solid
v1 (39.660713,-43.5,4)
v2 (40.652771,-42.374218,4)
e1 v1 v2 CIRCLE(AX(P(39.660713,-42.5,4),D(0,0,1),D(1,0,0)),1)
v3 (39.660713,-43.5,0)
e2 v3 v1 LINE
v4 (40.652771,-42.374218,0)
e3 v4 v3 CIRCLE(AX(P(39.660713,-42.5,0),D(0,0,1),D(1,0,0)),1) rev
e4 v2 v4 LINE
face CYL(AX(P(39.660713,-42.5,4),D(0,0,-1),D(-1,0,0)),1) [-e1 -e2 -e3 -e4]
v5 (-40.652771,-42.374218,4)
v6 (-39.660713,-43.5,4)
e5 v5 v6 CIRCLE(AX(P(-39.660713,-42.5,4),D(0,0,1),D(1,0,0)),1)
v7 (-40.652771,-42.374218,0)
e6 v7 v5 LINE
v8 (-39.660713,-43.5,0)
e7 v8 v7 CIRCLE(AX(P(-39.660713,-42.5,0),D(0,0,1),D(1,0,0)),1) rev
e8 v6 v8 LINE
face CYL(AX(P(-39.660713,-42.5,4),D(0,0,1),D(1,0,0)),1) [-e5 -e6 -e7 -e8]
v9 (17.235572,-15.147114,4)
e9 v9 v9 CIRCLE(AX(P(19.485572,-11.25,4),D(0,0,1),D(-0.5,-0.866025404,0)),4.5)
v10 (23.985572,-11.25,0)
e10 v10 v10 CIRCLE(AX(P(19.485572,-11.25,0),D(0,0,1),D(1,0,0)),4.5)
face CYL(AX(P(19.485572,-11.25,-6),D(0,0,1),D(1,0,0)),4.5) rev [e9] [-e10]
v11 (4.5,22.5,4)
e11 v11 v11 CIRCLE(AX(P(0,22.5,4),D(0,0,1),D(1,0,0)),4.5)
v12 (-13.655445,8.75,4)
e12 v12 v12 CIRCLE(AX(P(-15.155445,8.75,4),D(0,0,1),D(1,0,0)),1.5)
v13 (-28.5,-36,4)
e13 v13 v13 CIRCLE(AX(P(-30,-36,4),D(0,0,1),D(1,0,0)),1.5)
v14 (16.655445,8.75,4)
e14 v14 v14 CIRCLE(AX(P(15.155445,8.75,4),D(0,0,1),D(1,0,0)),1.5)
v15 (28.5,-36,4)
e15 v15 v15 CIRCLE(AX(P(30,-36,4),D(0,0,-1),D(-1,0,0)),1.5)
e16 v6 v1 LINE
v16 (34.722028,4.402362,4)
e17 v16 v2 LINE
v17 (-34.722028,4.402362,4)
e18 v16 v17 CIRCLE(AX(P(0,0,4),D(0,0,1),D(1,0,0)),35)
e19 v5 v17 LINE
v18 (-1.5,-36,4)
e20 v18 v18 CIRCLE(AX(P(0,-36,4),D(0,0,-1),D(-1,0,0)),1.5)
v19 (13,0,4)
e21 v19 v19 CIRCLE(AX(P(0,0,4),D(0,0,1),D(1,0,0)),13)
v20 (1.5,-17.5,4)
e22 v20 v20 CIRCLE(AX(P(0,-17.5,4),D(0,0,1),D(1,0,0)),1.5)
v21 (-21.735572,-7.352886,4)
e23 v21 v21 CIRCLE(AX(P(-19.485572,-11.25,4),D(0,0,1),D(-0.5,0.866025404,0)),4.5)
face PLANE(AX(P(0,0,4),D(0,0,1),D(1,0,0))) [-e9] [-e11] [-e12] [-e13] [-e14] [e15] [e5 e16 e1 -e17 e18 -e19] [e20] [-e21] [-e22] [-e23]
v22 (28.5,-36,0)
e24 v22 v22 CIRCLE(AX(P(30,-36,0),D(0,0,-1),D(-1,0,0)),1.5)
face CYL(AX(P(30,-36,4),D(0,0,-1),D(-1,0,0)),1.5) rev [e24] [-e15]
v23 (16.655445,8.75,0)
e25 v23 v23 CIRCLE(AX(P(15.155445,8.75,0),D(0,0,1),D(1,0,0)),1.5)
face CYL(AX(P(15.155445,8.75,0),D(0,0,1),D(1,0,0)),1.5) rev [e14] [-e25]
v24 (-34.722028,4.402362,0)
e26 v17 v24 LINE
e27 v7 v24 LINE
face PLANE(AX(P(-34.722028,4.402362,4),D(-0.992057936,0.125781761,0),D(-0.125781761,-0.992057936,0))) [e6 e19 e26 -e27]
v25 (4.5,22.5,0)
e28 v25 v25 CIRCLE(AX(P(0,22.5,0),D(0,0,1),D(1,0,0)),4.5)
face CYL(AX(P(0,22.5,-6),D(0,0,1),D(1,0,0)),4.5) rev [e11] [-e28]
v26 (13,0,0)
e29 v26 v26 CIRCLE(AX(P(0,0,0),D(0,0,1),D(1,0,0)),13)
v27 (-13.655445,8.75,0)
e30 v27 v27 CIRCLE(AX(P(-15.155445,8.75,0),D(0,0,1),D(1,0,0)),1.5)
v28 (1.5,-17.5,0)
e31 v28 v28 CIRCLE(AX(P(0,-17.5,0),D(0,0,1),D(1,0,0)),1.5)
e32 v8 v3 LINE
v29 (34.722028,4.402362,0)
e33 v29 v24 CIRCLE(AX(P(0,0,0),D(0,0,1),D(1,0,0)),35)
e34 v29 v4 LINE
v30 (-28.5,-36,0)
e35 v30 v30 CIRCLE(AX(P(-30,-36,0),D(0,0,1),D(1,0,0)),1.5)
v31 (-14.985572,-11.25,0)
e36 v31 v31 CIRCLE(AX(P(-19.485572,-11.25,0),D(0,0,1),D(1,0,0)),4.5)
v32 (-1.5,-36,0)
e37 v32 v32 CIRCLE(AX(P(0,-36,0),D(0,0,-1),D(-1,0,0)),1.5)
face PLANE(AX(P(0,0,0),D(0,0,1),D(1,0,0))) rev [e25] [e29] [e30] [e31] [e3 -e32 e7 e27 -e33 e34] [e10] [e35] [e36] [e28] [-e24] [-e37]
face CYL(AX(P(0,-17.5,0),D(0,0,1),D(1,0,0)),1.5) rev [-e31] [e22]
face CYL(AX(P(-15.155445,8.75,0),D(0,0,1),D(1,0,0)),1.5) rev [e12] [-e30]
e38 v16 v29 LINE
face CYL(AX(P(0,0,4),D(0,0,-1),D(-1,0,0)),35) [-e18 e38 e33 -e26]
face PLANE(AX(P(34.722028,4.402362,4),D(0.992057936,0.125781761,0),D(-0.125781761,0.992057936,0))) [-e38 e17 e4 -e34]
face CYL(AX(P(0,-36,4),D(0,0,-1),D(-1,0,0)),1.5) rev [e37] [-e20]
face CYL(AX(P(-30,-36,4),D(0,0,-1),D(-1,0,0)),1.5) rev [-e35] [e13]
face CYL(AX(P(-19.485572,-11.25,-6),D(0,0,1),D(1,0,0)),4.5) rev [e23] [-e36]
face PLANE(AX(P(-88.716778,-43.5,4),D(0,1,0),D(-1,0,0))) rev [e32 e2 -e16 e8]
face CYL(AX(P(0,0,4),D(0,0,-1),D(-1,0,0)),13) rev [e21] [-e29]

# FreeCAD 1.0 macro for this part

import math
import FreeCAD as App
import Part
import Sketcher

V = App.Vector


def edges_at(feature, points):
    """Names of the edges that pass closest to the given points."""
    edges = feature.Shape.Edges
    near = lambda p: min(range(len(edges)), key=lambda i: edges[i].distToShape(Part.Vertex(*p))[0])
    return sorted({f"Edge{near(p) + 1}" for p in points})

doc = App.newDocument("Part")
body = doc.addObject("PartDesign::Body", "Body")

# Sketch on XY plane
sketch1 = body.newObject("Sketcher::SketchObject", "Sketch")
sketch1.AttachmentSupport = (doc.getObject("XY_Plane"), [""])
sketch1.MapMode = "FlatFace"
sketch1.addGeometry(Part.ArcOfCircle(Part.Circle(V(0, 0, 0), V(0, 0, 1), 35), math.radians(7.225904), math.radians(172.774096)), False)
sketch1.addGeometry(Part.LineSegment(V(-34.722028, 4.402362, 0), V(-42, -53, 0)), False)
sketch1.addGeometry(Part.LineSegment(V(-42, -53, 0), V(42, -53, 0)), False)
sketch1.addGeometry(Part.LineSegment(V(42, -53, 0), V(34.722028, 4.402362, 0)), False)
sketch1.addGeometry(Part.Circle(V(0, 0, 0), V(0, 0, 1), 13), False)
sketch1.addConstraint(Sketcher.Constraint("Tangent", 0, 2, 1, 1))
sketch1.addConstraint(Sketcher.Constraint("Coincident", 1, 2, 2, 1))
sketch1.addConstraint(Sketcher.Constraint("Coincident", 2, 2, 3, 1))
sketch1.addConstraint(Sketcher.Constraint("Tangent", 3, 2, 0, 1))
sketch1.addConstraint(Sketcher.Constraint("Horizontal", 2))
sketch1.addConstraint(Sketcher.Constraint("Coincident", 0, 3, -1, 1))
sketch1.addConstraint(Sketcher.Constraint("Coincident", 4, 3, -1, 1))
sketch1.addConstraint(Sketcher.Constraint("Horizontal", 0, 2, 3, 2))
sketch1.addConstraint(Sketcher.Constraint("Diameter", 4, 26.0))
sketch1.addConstraint(Sketcher.Constraint("Radius", 0, 35.0))
sketch1.addConstraint(Sketcher.Constraint("DistanceX", 2, 1, 2, 2, 84.0))
sketch1.addConstraint(Sketcher.Constraint("DistanceY", 1, 2, -1, 1, 53.0))
pad1 = body.newObject("PartDesign::Pad", "Pad")
pad1.Profile = sketch1
pad1.Length = 4

# Sketch on XY plane
sketch2 = body.newObject("Sketcher::SketchObject", "Sketch001")
sketch2.AttachmentSupport = (doc.getObject("XY_Plane"), [""])
sketch2.MapMode = "FlatFace"
sketch2.AttachmentOffset = App.Placement(V(0, 0, 4), App.Rotation())
sketch2.addGeometry(Part.LineSegment(V(-42, -53, 0), V(-42, -115, 0)), False)
sketch2.addGeometry(Part.LineSegment(V(-42, -115, 0), V(42, -115, 0)), False)
sketch2.addGeometry(Part.LineSegment(V(42, -115, 0), V(42, -53, 0)), False)
sketch2.addGeometry(Part.LineSegment(V(42, -53, 0), V(-42, -53, 0)), False)
sketch2.addConstraint(Sketcher.Constraint("Coincident", 0, 2, 1, 1))
sketch2.addConstraint(Sketcher.Constraint("Coincident", 1, 2, 2, 1))
sketch2.addConstraint(Sketcher.Constraint("Coincident", 2, 2, 3, 1))
sketch2.addConstraint(Sketcher.Constraint("Coincident", 3, 2, 0, 1))
sketch2.addConstraint(Sketcher.Constraint("Vertical", 0))
sketch2.addConstraint(Sketcher.Constraint("Horizontal", 1))
sketch2.addConstraint(Sketcher.Constraint("Vertical", 2))
sketch2.addConstraint(Sketcher.Constraint("Horizontal", 3))
sketch2.addConstraint(Sketcher.Constraint("DistanceX", 1, 1, 1, 2, 84.0))
sketch2.addConstraint(Sketcher.Constraint("DistanceY", 0, 2, 0, 1, 62.0))
sketch2.addConstraint(Sketcher.Constraint("DistanceX", 0, 2, -1, 1, 42.0))
sketch2.addConstraint(Sketcher.Constraint("DistanceY", 0, 2, -1, 1, 115.0))
pad2 = body.newObject("PartDesign::Pad", "Pad001")
pad2.Profile = sketch2
pad2.Length = 4
pad2.Reversed = True

# Sketch on XY plane
sketch3 = body.newObject("Sketcher::SketchObject", "Sketch002")
sketch3.AttachmentSupport = (doc.getObject("XY_Plane"), [""])
sketch3.MapMode = "FlatFace"
sketch3.AttachmentOffset = App.Placement(V(0, 0, 4), App.Rotation())
sketch3.addGeometry(Part.Circle(V(0, 22.5, 0), V(0, 0, 1), 4.5), False)
sketch3.addConstraint(Sketcher.Constraint("PointOnObject", 0, 3, -2))
sketch3.addConstraint(Sketcher.Constraint("Diameter", 0, 9.0))
sketch3.addConstraint(Sketcher.Constraint("DistanceY", -1, 1, 0, 3, 22.5))
pocket1 = body.newObject("PartDesign::Pocket", "Pocket")
pocket1.Profile = sketch3
pocket1.Length = 10

# Sketch on XY plane
sketch4 = body.newObject("Sketcher::SketchObject", "Sketch003")
sketch4.AttachmentSupport = (doc.getObject("XY_Plane"), [""])
sketch4.MapMode = "FlatFace"
sketch4.AttachmentOffset = App.Placement(V(0, 0, 4), App.Rotation())
sketch4.addGeometry(Part.Circle(V(15.155445, 8.75, 0), V(0, 0, 1), 1.5), False)
sketch4.addGeometry(Part.Circle(V(0, -17.5, 0), V(0, 0, 1), 1.5), False)
sketch4.addGeometry(Part.Circle(V(-15.155445, 8.75, 0), V(0, 0, 1), 1.5), False)
sketch4.addConstraint(Sketcher.Constraint("Equal", 0, 1))
sketch4.addConstraint(Sketcher.Constraint("Equal", 1, 2))
sketch4.addConstraint(Sketcher.Constraint("Symmetric", 0, 3, 2, 3, -2))
sketch4.addConstraint(Sketcher.Constraint("PointOnObject", 1, 3, -2))
sketch4.addConstraint(Sketcher.Constraint("Diameter", 0, 3.0))
sketch4.addConstraint(Sketcher.Constraint("DistanceY", 1, 3, -1, 1, 17.5))
sketch4.addConstraint(Sketcher.Constraint("DistanceY", -1, 1, 0, 3, 8.75))
sketch4.addConstraint(Sketcher.Constraint("DistanceX", 2, 3, 0, 3, 30.310889))
pocket2 = body.newObject("PartDesign::Pocket", "Pocket001")
pocket2.Profile = sketch4
pocket2.Type = "ThroughAll"

# Sketch on XY plane
sketch5 = body.newObject("Sketcher::SketchObject", "Sketch004")
sketch5.AttachmentSupport = (doc.getObject("XY_Plane"), [""])
sketch5.MapMode = "FlatFace"
sketch5.AttachmentOffset = App.Placement(V(0, 0, 4), App.Rotation())
sketch5.addGeometry(Part.LineSegment(V(-60, -53, 0), V(-60, -97, 0)), False)
sketch5.addGeometry(Part.LineSegment(V(-60, -97, 0), V(-42, -97, 0)), False)
sketch5.addGeometry(Part.LineSegment(V(-42, -97, 0), V(-42, -53, 0)), False)
sketch5.addGeometry(Part.LineSegment(V(-42, -53, 0), V(-60, -53, 0)), False)
sketch5.addConstraint(Sketcher.Constraint("Coincident", 0, 2, 1, 1))
sketch5.addConstraint(Sketcher.Constraint("Coincident", 1, 2, 2, 1))
sketch5.addConstraint(Sketcher.Constraint("Coincident", 2, 2, 3, 1))
sketch5.addConstraint(Sketcher.Constraint("Coincident", 3, 2, 0, 1))
sketch5.addConstraint(Sketcher.Constraint("Vertical", 0))
sketch5.addConstraint(Sketcher.Constraint("Horizontal", 1))
sketch5.addConstraint(Sketcher.Constraint("Vertical", 2))
sketch5.addConstraint(Sketcher.Constraint("Horizontal", 3))
sketch5.addConstraint(Sketcher.Constraint("DistanceX", 1, 1, 1, 2, 18.0))
sketch5.addConstraint(Sketcher.Constraint("DistanceY", 0, 2, 0, 1, 44.0))
sketch5.addConstraint(Sketcher.Constraint("DistanceX", 0, 2, -1, 1, 60.0))
sketch5.addConstraint(Sketcher.Constraint("DistanceY", 0, 2, -1, 1, 97.0))
pad3 = body.newObject("PartDesign::Pad", "Pad002")
pad3.Profile = sketch5
pad3.Length = 4
pad3.Reversed = True
doc.recompute()

mirrored = body.newObject("PartDesign::Mirrored", "Mirrored")
mirrored.Originals = [pad3]
mirrored.MirrorPlane = (doc.getObject("YZ_Plane"), [""])
body.Tip = mirrored

# Sketch on XY plane
sketch6 = body.newObject("Sketcher::SketchObject", "Sketch005")
sketch6.AttachmentSupport = (doc.getObject("XY_Plane"), [""])
sketch6.MapMode = "FlatFace"
sketch6.addGeometry(Part.LineSegment(V(32, -65, 0), V(32, -87, 0)), False)
sketch6.addGeometry(Part.LineSegment(V(32, -87, 0), V(-32, -87, 0)), False)
sketch6.addGeometry(Part.LineSegment(V(-32, -87, 0), V(-32, -65, 0)), False)
sketch6.addGeometry(Part.LineSegment(V(-32, -65, 0), V(32, -65, 0)), False)
sketch6.addConstraint(Sketcher.Constraint("Coincident", 0, 2, 1, 1))
sketch6.addConstraint(Sketcher.Constraint("Coincident", 1, 2, 2, 1))
sketch6.addConstraint(Sketcher.Constraint("Coincident", 2, 2, 3, 1))
sketch6.addConstraint(Sketcher.Constraint("Coincident", 3, 2, 0, 1))
sketch6.addConstraint(Sketcher.Constraint("Vertical", 0))
sketch6.addConstraint(Sketcher.Constraint("Horizontal", 1))
sketch6.addConstraint(Sketcher.Constraint("Vertical", 2))
sketch6.addConstraint(Sketcher.Constraint("Horizontal", 3))
sketch6.addConstraint(Sketcher.Constraint("DistanceX", 1, 2, 1, 1, 64.0))
sketch6.addConstraint(Sketcher.Constraint("DistanceY", 0, 2, 0, 1, 22.0))
sketch6.addConstraint(Sketcher.Constraint("DistanceX", -1, 1, 0, 2, 32.0))
sketch6.addConstraint(Sketcher.Constraint("DistanceY", 0, 2, -1, 1, 87.0))
pocket3 = body.newObject("PartDesign::Pocket", "Pocket002")
pocket3.Profile = sketch6
pocket3.Type = "ThroughAll"
pocket3.Reversed = True

# Sketch on XY plane
sketch7 = body.newObject("Sketcher::SketchObject", "Sketch006")
sketch7.AttachmentSupport = (doc.getObject("XY_Plane"), [""])
sketch7.MapMode = "FlatFace"
sketch7.addGeometry(Part.Circle(V(0, -107.5, 0), V(0, 0, 1), 1.5), False)
sketch7.addGeometry(Part.Circle(V(-24, -107.5, 0), V(0, 0, 1), 1.5), False)
sketch7.addConstraint(Sketcher.Constraint("Equal", 0, 1))
sketch7.addConstraint(Sketcher.Constraint("PointOnObject", 0, 3, -2))
sketch7.addConstraint(Sketcher.Constraint("Horizontal", 0, 3, 1, 3))
sketch7.addConstraint(Sketcher.Constraint("Diameter", 0, 3.0))
sketch7.addConstraint(Sketcher.Constraint("DistanceX", 1, 3, -1, 1, 24.0))
sketch7.addConstraint(Sketcher.Constraint("DistanceY", 0, 3, -1, 1, 107.5))
pocket4 = body.newObject("PartDesign::Pocket", "Pocket003")
pocket4.Profile = sketch7
pocket4.Type = "ThroughAll"
pocket4.Reversed = True
doc.recompute()

mirrored2 = body.newObject("PartDesign::Mirrored", "Mirrored001")
mirrored2.Originals = [pocket4]
mirrored2.MirrorPlane = (doc.getObject("YZ_Plane"), [""])
body.Tip = mirrored2

# Sketch on XY plane
sketch8 = body.newObject("Sketcher::SketchObject", "Sketch007")
sketch8.AttachmentSupport = (doc.getObject("XY_Plane"), [""])
sketch8.MapMode = "FlatFace"
sketch8.addGeometry(Part.Circle(V(52.5, -67.5, 0), V(0, 0, 1), 1.5), False)
sketch8.addGeometry(Part.Circle(V(52.5, -90, 0), V(0, 0, 1), 1.5), False)
sketch8.addConstraint(Sketcher.Constraint("Equal", 0, 1))
sketch8.addConstraint(Sketcher.Constraint("Vertical", 0, 3, 1, 3))
sketch8.addConstraint(Sketcher.Constraint("Diameter", 0, 3.0))
sketch8.addConstraint(Sketcher.Constraint("DistanceY", 1, 3, -1, 1, 90.0))
sketch8.addConstraint(Sketcher.Constraint("DistanceX", -1, 1, 0, 3, 52.5))
sketch8.addConstraint(Sketcher.Constraint("DistanceY", 0, 3, -1, 1, 67.5))
pocket5 = body.newObject("PartDesign::Pocket", "Pocket004")
pocket5.Profile = sketch8
pocket5.Type = "ThroughAll"
pocket5.Reversed = True
doc.recompute()

mirrored3 = body.newObject("PartDesign::Mirrored", "Mirrored002")
mirrored3.Originals = [pocket5]
mirrored3.MirrorPlane = (doc.getObject("YZ_Plane"), [""])
body.Tip = mirrored3

# Sketch on XY plane
sketch9 = body.newObject("Sketcher::SketchObject", "Sketch008")
sketch9.AttachmentSupport = (doc.getObject("XY_Plane"), [""])
sketch9.MapMode = "FlatFace"
sketch9.addGeometry(Part.Circle(V(30, -36, 0), V(0, 0, 1), 1.5), False)
sketch9.addConstraint(Sketcher.Constraint("Diameter", 0, 3.0))
sketch9.addConstraint(Sketcher.Constraint("DistanceX", -1, 1, 0, 3, 30.0))
sketch9.addConstraint(Sketcher.Constraint("DistanceY", 0, 3, -1, 1, 36.0))
pocket6 = body.newObject("PartDesign::Pocket", "Pocket005")
pocket6.Profile = sketch9
pocket6.Type = "ThroughAll"
pocket6.Reversed = True
doc.recompute()

mirrored4 = body.newObject("PartDesign::Mirrored", "Mirrored003")
mirrored4.Originals = [pocket6]
mirrored4.MirrorPlane = (doc.getObject("YZ_Plane"), [""])
body.Tip = mirrored4
doc.recompute()

fillet = body.newObject("PartDesign::Fillet", "Fillet")
fillet.Base = (mirrored4, edges_at(mirrored4, [
    (42, -53, 2),
    (-42, -53, 2),
    (-42, -97, 2),
    (42, -97, 2),
    (-32, -65, 2),
    (-32, -87, 2),
    (32, -87, 2),
    (32, -65, 2),
]))
fillet.Radius = 3

# Sketch on XY plane
sketch10 = body.newObject("Sketcher::SketchObject", "Sketch009")
sketch10.AttachmentSupport = (doc.getObject("XY_Plane"), [""])
sketch10.MapMode = "FlatFace"
sketch10.addGeometry(Part.LineSegment(V(-40, -97, 0), V(-40, -115, 0)), False)
sketch10.addGeometry(Part.LineSegment(V(-40, -115, 0), V(-60, -115, 0)), False)
sketch10.addGeometry(Part.LineSegment(V(-60, -115, 0), V(-60, -97, 0)), False)
sketch10.addGeometry(Part.LineSegment(V(-60, -97, 0), V(-40, -97, 0)), False)
sketch10.addConstraint(Sketcher.Constraint("Coincident", 0, 2, 1, 1))
sketch10.addConstraint(Sketcher.Constraint("Coincident", 1, 2, 2, 1))
sketch10.addConstraint(Sketcher.Constraint("Coincident", 2, 2, 3, 1))
sketch10.addConstraint(Sketcher.Constraint("Coincident", 3, 2, 0, 1))
sketch10.addConstraint(Sketcher.Constraint("Vertical", 0))
sketch10.addConstraint(Sketcher.Constraint("Horizontal", 1))
sketch10.addConstraint(Sketcher.Constraint("Vertical", 2))
sketch10.addConstraint(Sketcher.Constraint("Horizontal", 3))
sketch10.addConstraint(Sketcher.Constraint("DistanceX", 1, 2, 1, 1, 20.0))
sketch10.addConstraint(Sketcher.Constraint("DistanceY", 0, 2, 0, 1, 18.0))
sketch10.addConstraint(Sketcher.Constraint("DistanceX", 0, 2, -1, 1, 40.0))
sketch10.addConstraint(Sketcher.Constraint("DistanceY", 0, 2, -1, 1, 115.0))
pocket7 = body.newObject("PartDesign::Pocket", "Pocket006")
pocket7.Profile = sketch10
pocket7.Type = "ThroughAll"
pocket7.Reversed = True
doc.recompute()

mirrored5 = body.newObject("PartDesign::Mirrored", "Mirrored004")
mirrored5.Originals = [pocket7]
mirrored5.MirrorPlane = (doc.getObject("YZ_Plane"), [""])
body.Tip = mirrored5
doc.recompute()

fillet2 = body.newObject("PartDesign::Fillet", "Fillet001")
fillet2.Base = (mirrored5, edges_at(mirrored5, [(-40, -97, 2), (40, -97, 2)]))
fillet2.Radius = 3
doc.recompute()

polarpattern = body.newObject("PartDesign::PolarPattern", "PolarPattern")
polarpattern.Originals = [pocket1]
polarpattern.Axis = (doc.getObject("Z_Axis"), [""])
polarpattern.Angle = 360
polarpattern.Occurrences = 3
body.Tip = polarpattern

# Sketch on XY plane
sketch11 = body.newObject("Sketcher::SketchObject", "Sketch010")
sketch11.AttachmentSupport = (doc.getObject("XY_Plane"), [""])
sketch11.MapMode = "FlatFace"
sketch11.AttachmentOffset = App.Placement(V(0, 0, 4), App.Rotation())
sketch11.addGeometry(Part.LineSegment(V(-60, -75, 0), V(-60, -129.116042, 0)), False)
sketch11.addGeometry(Part.LineSegment(V(-60, -129.116042, 0), V(65.497246, -129.116042, 0)), False)
sketch11.addGeometry(Part.LineSegment(V(65.497246, -129.116042, 0), V(65.497246, -75, 0)), False)
sketch11.addGeometry(Part.LineSegment(V(65.497246, -75, 0), V(-60, -75, 0)), False)
sketch11.addConstraint(Sketcher.Constraint("Coincident", 0, 2, 1, 1))
sketch11.addConstraint(Sketcher.Constraint("Coincident", 1, 2, 2, 1))
sketch11.addConstraint(Sketcher.Constraint("Coincident", 2, 2, 3, 1))
sketch11.addConstraint(Sketcher.Constraint("Coincident", 3, 2, 0, 1))
sketch11.addConstraint(Sketcher.Constraint("Vertical", 0))
sketch11.addConstraint(Sketcher.Constraint("Horizontal", 1))
sketch11.addConstraint(Sketcher.Constraint("Vertical", 2))
sketch11.addConstraint(Sketcher.Constraint("Horizontal", 3))
sketch11.addConstraint(Sketcher.Constraint("DistanceX", 0, 2, -1, 1, 60.0))
sketch11.addConstraint(Sketcher.Constraint("DistanceY", 2, 2, -1, 1, 75.0))
sketch11.addConstraint(Sketcher.Constraint("DistanceX", 1, 1, 1, 2, 125.497246))
sketch11.addConstraint(Sketcher.Constraint("DistanceY", 0, 2, 0, 1, 54.116042))
pocket8 = body.newObject("PartDesign::Pocket", "Pocket007")
pocket8.Profile = sketch11
pocket8.Type = "ThroughAll"
doc.recompute()

fillet3 = body.newObject("PartDesign::Fillet", "Fillet002")
fillet3.Base = (pocket8, edges_at(pocket8, [(32, -75, 2), (-32, -75, 2)]))
fillet3.Radius = 3

# Sketch on XY plane
sketch12 = body.newObject("Sketcher::SketchObject", "Sketch011")
sketch12.AttachmentSupport = (doc.getObject("XY_Plane"), [""])
sketch12.MapMode = "FlatFace"
sketch12.addGeometry(Part.Circle(V(0, -36, 0), V(0, 0, 1), 1.5), False)
sketch12.addConstraint(Sketcher.Constraint("PointOnObject", 0, 3, -2))
sketch12.addConstraint(Sketcher.Constraint("Diameter", 0, 3.0))
sketch12.addConstraint(Sketcher.Constraint("DistanceY", 0, 3, -1, 1, 36.0))
pocket9 = body.newObject("PartDesign::Pocket", "Pocket008")
pocket9.Profile = sketch12
pocket9.Type = "ThroughAll"
pocket9.Reversed = True

# Sketch on XY plane
sketch13 = body.newObject("Sketcher::SketchObject", "Sketch012")
sketch13.AttachmentSupport = (doc.getObject("XY_Plane"), [""])
sketch13.MapMode = "FlatFace"
sketch13.addGeometry(Part.LineSegment(V(80.242856, -43.5, 0), V(80.242856, -105.858712, 0)), False)
sketch13.addGeometry(Part.LineSegment(V(80.242856, -105.858712, 0), V(-88.716778, -105.858712, 0)), False)
sketch13.addGeometry(Part.LineSegment(V(-88.716778, -105.858712, 0), V(-88.716778, -43.5, 0)), False)
sketch13.addGeometry(Part.LineSegment(V(-88.716778, -43.5, 0), V(80.242856, -43.5, 0)), False)
sketch13.addConstraint(Sketcher.Constraint("Coincident", 0, 2, 1, 1))
sketch13.addConstraint(Sketcher.Constraint("Coincident", 1, 2, 2, 1))
sketch13.addConstraint(Sketcher.Constraint("Coincident", 2, 2, 3, 1))
sketch13.addConstraint(Sketcher.Constraint("Coincident", 3, 2, 0, 1))
sketch13.addConstraint(Sketcher.Constraint("Vertical", 0))
sketch13.addConstraint(Sketcher.Constraint("Horizontal", 1))
sketch13.addConstraint(Sketcher.Constraint("Vertical", 2))
sketch13.addConstraint(Sketcher.Constraint("Horizontal", 3))
sketch13.addConstraint(Sketcher.Constraint("DistanceY", 2, 2, -1, 1, 43.5))
sketch13.addConstraint(Sketcher.Constraint("DistanceY", 0, 2, 0, 1, 62.358712))
sketch13.addConstraint(Sketcher.Constraint("DistanceX", 1, 2, 1, 1, 168.959633))
sketch13.addConstraint(Sketcher.Constraint("DistanceX", -1, 1, 0, 2, 80.242856))
pocket10 = body.newObject("PartDesign::Pocket", "Pocket009")
pocket10.Profile = sketch13
pocket10.Type = "ThroughAll"
pocket10.Reversed = True
doc.recompute()

fillet4 = body.newObject("PartDesign::Fillet", "Fillet003")
fillet4.Base = (pocket10, edges_at(pocket10, [(40.796, -43.5, 2), (-40.796, -43.5, 2)]))
fillet4.Radius = 1

doc.recompute()
